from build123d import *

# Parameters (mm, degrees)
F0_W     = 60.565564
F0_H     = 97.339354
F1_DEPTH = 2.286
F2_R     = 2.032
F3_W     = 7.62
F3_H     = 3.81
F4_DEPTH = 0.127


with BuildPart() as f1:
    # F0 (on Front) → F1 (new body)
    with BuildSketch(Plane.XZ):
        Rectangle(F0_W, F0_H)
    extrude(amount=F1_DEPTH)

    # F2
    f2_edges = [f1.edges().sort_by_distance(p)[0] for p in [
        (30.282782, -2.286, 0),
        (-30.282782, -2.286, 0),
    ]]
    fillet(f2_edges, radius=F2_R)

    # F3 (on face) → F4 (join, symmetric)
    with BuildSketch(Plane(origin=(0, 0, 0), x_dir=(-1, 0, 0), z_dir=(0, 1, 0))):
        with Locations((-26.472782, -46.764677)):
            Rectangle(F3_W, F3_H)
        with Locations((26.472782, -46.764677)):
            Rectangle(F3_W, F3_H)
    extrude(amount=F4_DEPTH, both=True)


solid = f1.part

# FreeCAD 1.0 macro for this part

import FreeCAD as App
import Part
import Sketcher
Q = App.Units.Quantity


def edges_at(feature, points):
    """Names of the edges that pass closest to the given points."""
    edges = feature.Shape.Edges
    near = lambda p: min(range(len(edges)), key=lambda i: edges[i].distToShape(Part.Vertex(*p))[0])
    return sorted({f"Edge{near(p) + 1}" for p in points})


def add_polygon(sketch, points):
    """Adds a closed chain of lines whose ends are joined by coincident constraints."""
    first, n = sketch.GeometryCount, len(points)
    for a, b in zip(points, points[1:] + points[:1]):
        sketch.addGeometry(Part.LineSegment(App.Vector(*a, 0), App.Vector(*b, 0)), False)
    for i in range(n):
        sketch.addConstraint(Sketcher.Constraint("Coincident", first + i, 2, first + (i + 1) % n, 1))

doc = App.newDocument("Part")
body = doc.addObject("PartDesign::Body", "Body")

# Sketch on XZ plane
sketch1 = body.newObject("Sketcher::SketchObject", "Sketch")
sketch1.AttachmentSupport = (doc.getObject("XZ_Plane"), [""])
sketch1.MapMode = "FlatFace"
add_polygon(sketch1, [(-30.282782, 48.669677), (-30.282782, -48.669677), (30.282782, -48.669677), (30.282782, 48.669677)])  # lines 0-3
sketch1.addConstraint([
    Sketcher.Constraint("Vertical", 0),
    Sketcher.Constraint("Horizontal", 1),
    Sketcher.Constraint("Vertical", 2),
    Sketcher.Constraint("Horizontal", 3),
    Sketcher.Constraint("Symmetric", 0, 2, 2, 2, -1, 1),
    Sketcher.Constraint("DistanceX", 1, 1, 1, 2, 60.565564),
    Sketcher.Constraint("DistanceY", 0, 2, 0, 1, 97.339354),
])
pad1 = body.newObject("PartDesign::Pad", "Pad")
pad1.Profile = sketch1
pad1.Length = Q("0.09 in")
doc.recompute()

fillet = body.newObject("PartDesign::Fillet", "Fillet")
fillet.Base = (pad1, edges_at(pad1, [(30.283, -2.286, 0), (-30.283, -2.286, 0)]))
fillet.Radius = Q("0.08 in")

# Sketch on XZ plane
sketch2 = body.newObject("Sketcher::SketchObject", "Sketch001")
sketch2.AttachmentSupport = (doc.getObject("XZ_Plane"), [""])
sketch2.MapMode = "FlatFace"
add_polygon(sketch2, [(30.282782, -44.859677), (30.282782, -48.669677), (22.662782, -48.669677), (22.662782, -44.859677)])  # lines 0-3
add_polygon(sketch2, [(-22.662782, -44.859677), (-22.662782, -48.669677), (-30.282782, -48.669677), (-30.282782, -44.859677)])  # lines 4-7
sketch2.addConstraint([
    Sketcher.Constraint("Vertical", 0),
    Sketcher.Constraint("Horizontal", 1),
    Sketcher.Constraint("Vertical", 2),
    Sketcher.Constraint("Horizontal", 3),
    Sketcher.Constraint("Vertical", 4),
    Sketcher.Constraint("Horizontal", 5),
    Sketcher.Constraint("Vertical", 6),
    Sketcher.Constraint("Horizontal", 7),
    Sketcher.Constraint("Symmetric", 1, 2, 4, 2, -2),
    Sketcher.Constraint("Symmetric", 3, 2, 6, 2, -2),
    Sketcher.Constraint("DistanceX", 1, 2, 1, 1, Q("0.3 in")),
    Sketcher.Constraint("DistanceY", 0, 2, 0, 1, Q("0.15 in")),
    Sketcher.Constraint("DistanceX", -1, 1, 1, 2, 22.662782),
    Sketcher.Constraint("DistanceY", 0, 2, -1, 1, 48.669677),
])
pad2 = body.newObject("PartDesign::Pad", "Pad001")
pad2.Profile = sketch2
pad2.Length = Q("0.01 in")
pad2.Midplane = True

doc.recompute()
